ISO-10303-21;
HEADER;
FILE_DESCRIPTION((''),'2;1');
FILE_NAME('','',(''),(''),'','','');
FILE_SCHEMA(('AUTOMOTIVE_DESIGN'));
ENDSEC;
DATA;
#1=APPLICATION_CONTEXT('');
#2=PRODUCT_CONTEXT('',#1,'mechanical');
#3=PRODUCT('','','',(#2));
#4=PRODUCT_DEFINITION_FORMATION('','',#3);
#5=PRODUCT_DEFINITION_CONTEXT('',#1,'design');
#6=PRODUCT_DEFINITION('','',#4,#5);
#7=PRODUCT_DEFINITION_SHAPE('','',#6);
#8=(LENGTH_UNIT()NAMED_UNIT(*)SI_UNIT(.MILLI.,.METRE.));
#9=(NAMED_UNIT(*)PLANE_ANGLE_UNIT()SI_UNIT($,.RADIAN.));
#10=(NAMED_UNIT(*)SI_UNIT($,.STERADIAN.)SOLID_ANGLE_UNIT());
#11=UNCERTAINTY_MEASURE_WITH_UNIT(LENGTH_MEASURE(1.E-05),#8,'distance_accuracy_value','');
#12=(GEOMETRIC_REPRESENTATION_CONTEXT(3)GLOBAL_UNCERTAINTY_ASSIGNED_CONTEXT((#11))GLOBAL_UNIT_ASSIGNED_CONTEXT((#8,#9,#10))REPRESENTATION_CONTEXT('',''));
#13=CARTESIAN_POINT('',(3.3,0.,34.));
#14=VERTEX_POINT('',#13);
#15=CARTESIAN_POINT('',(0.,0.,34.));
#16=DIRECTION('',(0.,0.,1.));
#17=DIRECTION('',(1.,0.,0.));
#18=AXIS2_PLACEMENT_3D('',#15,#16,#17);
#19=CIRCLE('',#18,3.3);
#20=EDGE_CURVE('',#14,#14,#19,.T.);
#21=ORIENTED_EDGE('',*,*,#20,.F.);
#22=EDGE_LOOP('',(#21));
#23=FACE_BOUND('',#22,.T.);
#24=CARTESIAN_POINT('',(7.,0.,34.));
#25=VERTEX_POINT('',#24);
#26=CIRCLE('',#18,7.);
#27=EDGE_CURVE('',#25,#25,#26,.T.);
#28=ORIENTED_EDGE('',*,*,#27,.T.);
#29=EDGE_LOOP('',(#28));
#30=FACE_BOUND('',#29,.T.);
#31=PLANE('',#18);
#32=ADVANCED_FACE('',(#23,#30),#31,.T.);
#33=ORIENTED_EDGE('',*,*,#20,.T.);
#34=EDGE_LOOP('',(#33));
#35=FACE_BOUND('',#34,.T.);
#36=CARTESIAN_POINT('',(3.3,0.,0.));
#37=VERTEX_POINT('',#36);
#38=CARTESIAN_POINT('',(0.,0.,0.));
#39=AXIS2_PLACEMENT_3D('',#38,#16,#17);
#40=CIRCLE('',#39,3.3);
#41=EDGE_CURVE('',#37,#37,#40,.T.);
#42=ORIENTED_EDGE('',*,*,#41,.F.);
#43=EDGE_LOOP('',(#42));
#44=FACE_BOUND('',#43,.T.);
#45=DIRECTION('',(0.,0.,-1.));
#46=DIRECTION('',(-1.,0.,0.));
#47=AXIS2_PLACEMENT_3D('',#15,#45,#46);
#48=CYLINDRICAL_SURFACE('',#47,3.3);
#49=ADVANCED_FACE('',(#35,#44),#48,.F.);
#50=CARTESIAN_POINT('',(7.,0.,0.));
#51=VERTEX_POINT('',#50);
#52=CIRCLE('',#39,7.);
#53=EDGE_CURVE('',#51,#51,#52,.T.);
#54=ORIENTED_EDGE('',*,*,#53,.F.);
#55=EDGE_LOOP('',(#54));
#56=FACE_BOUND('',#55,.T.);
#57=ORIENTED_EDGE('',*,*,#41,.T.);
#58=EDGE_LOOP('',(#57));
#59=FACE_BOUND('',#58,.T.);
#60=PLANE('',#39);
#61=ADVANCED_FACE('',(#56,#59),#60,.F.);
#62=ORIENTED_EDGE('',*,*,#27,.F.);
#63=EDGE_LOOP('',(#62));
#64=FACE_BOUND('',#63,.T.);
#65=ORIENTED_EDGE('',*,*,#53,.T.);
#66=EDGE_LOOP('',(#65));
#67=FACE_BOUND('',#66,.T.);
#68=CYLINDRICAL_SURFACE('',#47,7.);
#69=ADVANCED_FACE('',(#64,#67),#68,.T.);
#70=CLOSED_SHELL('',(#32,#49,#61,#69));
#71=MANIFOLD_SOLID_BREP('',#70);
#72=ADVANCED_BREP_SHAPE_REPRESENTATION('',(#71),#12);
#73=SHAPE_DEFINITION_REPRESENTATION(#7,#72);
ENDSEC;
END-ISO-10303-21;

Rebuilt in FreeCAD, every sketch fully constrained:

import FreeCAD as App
import Part
import Sketcher

V = App.Vector
Q = App.Units.Quantity

doc = App.newDocument("Part")
body = doc.addObject("PartDesign::Body", "Body")

# Sketch on XY plane
sketch1 = doc.addObject("Sketcher::SketchObject", "Sketch")
body.addObject(sketch1)
sketch1.AttachmentSupport = (doc.XY_Plane, [""])
sketch1.MapMode = "FlatFace"
sketch1.addGeometry(Part.Circle(V(0, 0, 0), V(0, 0, 1), 7), False)
sketch1.addGeometry(Part.Circle(V(0, 0, 0), V(0, 0, 1), 3.3), False)
sketch1.addConstraint(Sketcher.Constraint("Coincident", 0, 3, -1, 1))
sketch1.addConstraint(Sketcher.Constraint("Coincident", 1, 3, -1, 1))
sketch1.addConstraint(Sketcher.Constraint("Diameter", 0, Q("14 mm")))
sketch1.addConstraint(Sketcher.Constraint("Diameter", 1, Q("6.6 mm")))
pad1 = doc.addObject("PartDesign::Pad", "Pad")
body.addObject(pad1)
pad1.Profile = sketch1
pad1.Length = 34

doc.recompute()
